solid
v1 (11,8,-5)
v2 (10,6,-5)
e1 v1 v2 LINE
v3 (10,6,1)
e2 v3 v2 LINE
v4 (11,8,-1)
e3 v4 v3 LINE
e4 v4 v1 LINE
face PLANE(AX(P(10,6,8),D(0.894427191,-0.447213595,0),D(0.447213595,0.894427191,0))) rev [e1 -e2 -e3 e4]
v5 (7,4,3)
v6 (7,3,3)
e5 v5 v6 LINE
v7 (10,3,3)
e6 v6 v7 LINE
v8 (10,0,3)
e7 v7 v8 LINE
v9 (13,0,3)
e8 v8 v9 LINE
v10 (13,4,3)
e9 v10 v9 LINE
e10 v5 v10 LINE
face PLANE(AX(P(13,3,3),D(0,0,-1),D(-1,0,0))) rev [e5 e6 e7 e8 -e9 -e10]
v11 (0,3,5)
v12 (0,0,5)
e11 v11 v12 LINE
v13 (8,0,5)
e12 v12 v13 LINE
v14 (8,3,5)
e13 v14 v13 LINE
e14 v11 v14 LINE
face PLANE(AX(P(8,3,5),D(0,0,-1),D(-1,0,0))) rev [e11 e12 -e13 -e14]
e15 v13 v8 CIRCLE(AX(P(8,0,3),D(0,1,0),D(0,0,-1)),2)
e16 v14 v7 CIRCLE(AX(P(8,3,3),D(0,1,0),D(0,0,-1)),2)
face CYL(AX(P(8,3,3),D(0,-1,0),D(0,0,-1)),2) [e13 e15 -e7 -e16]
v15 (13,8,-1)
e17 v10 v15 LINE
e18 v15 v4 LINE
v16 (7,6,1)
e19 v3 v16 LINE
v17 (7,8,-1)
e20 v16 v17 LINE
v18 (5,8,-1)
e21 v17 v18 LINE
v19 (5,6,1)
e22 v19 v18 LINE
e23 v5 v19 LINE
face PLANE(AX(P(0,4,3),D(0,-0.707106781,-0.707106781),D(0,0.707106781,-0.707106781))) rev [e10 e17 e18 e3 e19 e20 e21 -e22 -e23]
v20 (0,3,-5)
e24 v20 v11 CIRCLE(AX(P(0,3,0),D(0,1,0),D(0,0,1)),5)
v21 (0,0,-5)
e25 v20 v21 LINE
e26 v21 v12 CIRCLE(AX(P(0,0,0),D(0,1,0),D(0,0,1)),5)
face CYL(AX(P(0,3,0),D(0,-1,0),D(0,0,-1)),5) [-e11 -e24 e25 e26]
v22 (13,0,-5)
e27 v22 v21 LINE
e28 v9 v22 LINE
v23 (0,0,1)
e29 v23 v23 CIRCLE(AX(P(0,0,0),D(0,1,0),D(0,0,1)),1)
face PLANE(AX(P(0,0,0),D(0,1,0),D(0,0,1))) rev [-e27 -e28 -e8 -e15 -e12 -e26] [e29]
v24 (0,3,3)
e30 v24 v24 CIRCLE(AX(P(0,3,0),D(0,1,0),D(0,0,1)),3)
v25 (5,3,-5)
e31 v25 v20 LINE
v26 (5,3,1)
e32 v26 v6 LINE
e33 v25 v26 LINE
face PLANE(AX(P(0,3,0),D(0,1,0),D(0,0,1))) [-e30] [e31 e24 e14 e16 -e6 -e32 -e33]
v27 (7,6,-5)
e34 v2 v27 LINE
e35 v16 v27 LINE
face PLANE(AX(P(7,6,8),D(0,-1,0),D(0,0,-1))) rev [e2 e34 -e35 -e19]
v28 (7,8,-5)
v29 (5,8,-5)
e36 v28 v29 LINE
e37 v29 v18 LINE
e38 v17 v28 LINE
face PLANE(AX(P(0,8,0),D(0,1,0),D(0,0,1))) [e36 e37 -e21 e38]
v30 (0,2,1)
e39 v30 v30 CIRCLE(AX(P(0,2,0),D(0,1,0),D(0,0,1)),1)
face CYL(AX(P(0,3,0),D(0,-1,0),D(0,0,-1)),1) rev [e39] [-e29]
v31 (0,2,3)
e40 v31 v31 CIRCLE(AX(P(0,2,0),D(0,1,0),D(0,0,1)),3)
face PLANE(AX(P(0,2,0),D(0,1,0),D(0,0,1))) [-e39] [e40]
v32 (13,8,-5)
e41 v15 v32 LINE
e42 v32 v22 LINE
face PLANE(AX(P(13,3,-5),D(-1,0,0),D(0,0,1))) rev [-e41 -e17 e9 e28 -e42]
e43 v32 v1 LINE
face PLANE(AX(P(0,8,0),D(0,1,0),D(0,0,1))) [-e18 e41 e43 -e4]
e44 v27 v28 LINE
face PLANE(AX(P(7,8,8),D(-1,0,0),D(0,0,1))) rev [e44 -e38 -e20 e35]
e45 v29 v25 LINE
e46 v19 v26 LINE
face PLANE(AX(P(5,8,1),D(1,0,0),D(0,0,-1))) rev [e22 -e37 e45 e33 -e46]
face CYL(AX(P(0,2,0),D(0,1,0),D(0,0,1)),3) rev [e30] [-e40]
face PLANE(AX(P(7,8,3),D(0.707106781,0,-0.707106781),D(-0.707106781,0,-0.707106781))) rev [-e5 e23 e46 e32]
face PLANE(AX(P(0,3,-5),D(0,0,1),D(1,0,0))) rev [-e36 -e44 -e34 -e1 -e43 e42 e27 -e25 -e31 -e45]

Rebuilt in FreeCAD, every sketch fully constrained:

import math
import FreeCAD as App
import Part
import Sketcher
from FreeCAD import Vector

doc = App.newDocument("Part")
body = doc.addObject("PartDesign::Body", "Body")

# Sketch on XZ plane
sketch1 = body.newObject("Sketcher::SketchObject", "Sketch")
sketch1.AttachmentSupport = (doc.getObject("XZ_Plane"), [""])
sketch1.MapMode = "FlatFace"
sketch1.addGeometry(Part.LineSegment(Vector(13, -5, 0), Vector(0, -5, 0)), False)
sketch1.addGeometry(Part.ArcOfCircle(Part.Circle(Vector(0, 0, 0), Vector(0, 0, 1), 5), math.radians(90), math.radians(270)), False)
sketch1.addGeometry(Part.LineSegment(Vector(0, 5, 0), Vector(8, 5, 0)), False)
sketch1.addGeometry(Part.ArcOfCircle(Part.Circle(Vector(8, 3, 0), Vector(0, 0, 1), 2), math.radians(0), math.radians(90)), False)
sketch1.addGeometry(Part.LineSegment(Vector(10, 3, 0), Vector(13, 3, 0)), False)
sketch1.addGeometry(Part.LineSegment(Vector(13, 3, 0), Vector(13, -5, 0)), False)
sketch1.addGeometry(Part.Circle(Vector(0, 0, 0), Vector(0, 0, 1), 1), False)
sketch1.addConstraint(Sketcher.Constraint("Tangent", 0, 2, 1, 2))
sketch1.addConstraint(Sketcher.Constraint("Tangent", 1, 1, 2, 1))
sketch1.addConstraint(Sketcher.Constraint("Tangent", 2, 2, 3, 2))
sketch1.addConstraint(Sketcher.Constraint("Coincident", 3, 1, 4, 1))
sketch1.addConstraint(Sketcher.Constraint("Coincident", 4, 2, 5, 1))
sketch1.addConstraint(Sketcher.Constraint("Coincident", 5, 2, 0, 1))
sketch1.addConstraint(Sketcher.Constraint("Horizontal", 0))
sketch1.addConstraint(Sketcher.Constraint("Horizontal", 2))
sketch1.addConstraint(Sketcher.Constraint("Horizontal", 4))
sketch1.addConstraint(Sketcher.Constraint("Vertical", 5))
sketch1.addConstraint(Sketcher.Constraint("Coincident", 1, 3, -1, 1))
sketch1.addConstraint(Sketcher.Constraint("Coincident", 6, 3, -1, 1))
sketch1.addConstraint(Sketcher.Constraint("Equal", 2, 5))
sketch1.addConstraint(Sketcher.Constraint("Diameter", 6, 2.0))
sketch1.addConstraint(Sketcher.Constraint("Radius", 1, 5.0))
sketch1.addConstraint(Sketcher.Constraint("Radius", 3, 2.0))
sketch1.addConstraint(Sketcher.Constraint("DistanceX", 0, 2, 0, 1, 13.0))
sketch1.addConstraint(Sketcher.Constraint("DistanceX", 2, 1, 2, 2, 8.0))
pad1 = body.newObject("PartDesign::Pad", "Pad")
pad1.Profile = sketch1
pad1.Length = 3
pad1.Reversed = True

# Sketch on XZ plane
sketch2 = body.newObject("Sketcher::SketchObject", "Sketch001")
sketch2.AttachmentSupport = (doc.getObject("XZ_Plane"), [""])
sketch2.MapMode = "FlatFace"
sketch2.AttachmentOffset = App.Placement(Vector(0, 0, -3), App.Rotation())
sketch2.addGeometry(Part.Circle(Vector(0, 0, 0), Vector(0, 0, 1), 3), False)
sketch2.addConstraint(Sketcher.Constraint("Coincident", 0, 3, -1, 1))
sketch2.addConstraint(Sketcher.Constraint("Diameter", 0, 6.0))
pocket1 = body.newObject("PartDesign::Pocket", "Pocket")
pocket1.Profile = sketch2
pocket1.Length = 1
pocket1.Reversed = True

# Sketch on XZ plane
sketch3 = body.newObject("Sketcher::SketchObject", "Sketch002")
sketch3.AttachmentSupport = (doc.getObject("XZ_Plane"), [""])
sketch3.MapMode = "FlatFace"
sketch3.AttachmentOffset = App.Placement(Vector(0, 0, -3), App.Rotation())
sketch3.addGeometry(Part.LineSegment(Vector(7, 3, 0), Vector(13, 3, 0)), False)
sketch3.addGeometry(Part.LineSegment(Vector(13, 3, 0), Vector(13, -5, 0)), False)
sketch3.addGeometry(Part.LineSegment(Vector(13, -5, 0), Vector(5, -5, 0)), False)
sketch3.addGeometry(Part.LineSegment(Vector(5, -5, 0), Vector(5, 1, 0)), False)
sketch3.addGeometry(Part.LineSegment(Vector(5, 1, 0), Vector(7, 3, 0)), False)
sketch3.addConstraint(Sketcher.Constraint("Coincident", 0, 2, 1, 1))
sketch3.addConstraint(Sketcher.Constraint("Coincident", 1, 2, 2, 1))
sketch3.addConstraint(Sketcher.Constraint("Coincident", 2, 2, 3, 1))
sketch3.addConstraint(Sketcher.Constraint("Coincident", 3, 2, 4, 1))
sketch3.addConstraint(Sketcher.Constraint("Coincident", 4, 2, 0, 1))
sketch3.addConstraint(Sketcher.Constraint("Horizontal", 0))
sketch3.addConstraint(Sketcher.Constraint("Vertical", 1))
sketch3.addConstraint(Sketcher.Constraint("Horizontal", 2))
sketch3.addConstraint(Sketcher.Constraint("Vertical", 3))
sketch3.addConstraint(Sketcher.Constraint("Equal", 2, 1))
sketch3.addConstraint(Sketcher.Constraint("Equal", 0, 3))
sketch3.addConstraint(Sketcher.Constraint("DistanceX", 0, 1, 0, 2, 6.0))
sketch3.addConstraint(Sketcher.Constraint("DistanceX", 2, 2, 2, 1, 8.0))
sketch3.addConstraint(Sketcher.Constraint("DistanceX", -1, 1, 0, 2, 13.0))
sketch3.addConstraint(Sketcher.Constraint("DistanceY", -1, 1, 0, 2, 3.0))
pad2 = body.newObject("PartDesign::Pad", "Pad001")
pad2.Profile = sketch3
pad2.Length = 5
pad2.Reversed = True

# Sketch on YZ plane
sketch4 = body.newObject("Sketcher::SketchObject", "Sketch003")
sketch4.AttachmentSupport = (doc.getObject("YZ_Plane"), [""])
sketch4.MapMode = "FlatFace"
sketch4.AttachmentOffset = App.Placement(Vector(0, 0, 13), App.Rotation())
sketch4.addGeometry(Part.LineSegment(Vector(4, 3, 0), Vector(8, -1, 0)), False)
sketch4.addGeometry(Part.LineSegment(Vector(8, -1, 0), Vector(8, 3, 0)), False)
sketch4.addGeometry(Part.LineSegment(Vector(8, 3, 0), Vector(4, 3, 0)), False)
sketch4.addConstraint(Sketcher.Constraint("Coincident", 0, 2, 1, 1))
sketch4.addConstraint(Sketcher.Constraint("Coincident", 1, 2, 2, 1))
sketch4.addConstraint(Sketcher.Constraint("Coincident", 2, 2, 0, 1))
sketch4.addConstraint(Sketcher.Constraint("Vertical", 1))
sketch4.addConstraint(Sketcher.Constraint("Horizontal", 2))
sketch4.addConstraint(Sketcher.Constraint("Equal", 2, 1))
sketch4.addConstraint(Sketcher.Constraint("DistanceX", 2, 2, 2, 1, 4.0))
sketch4.addConstraint(Sketcher.Constraint("DistanceX", -1, 1, 0, 2, 8.0))
sketch4.addConstraint(Sketcher.Constraint("DistanceY", 0, 2, -1, 1, 1.0))
pocket2 = body.newObject("PartDesign::Pocket", "Pocket001")
pocket2.Profile = sketch4
pocket2.Length = 13

# Sketch on XY plane
sketch5 = body.newObject("Sketcher::SketchObject", "Sketch004")
sketch5.AttachmentSupport = (doc.getObject("XY_Plane"), [""])
sketch5.MapMode = "FlatFace"
sketch5.AttachmentOffset = App.Placement(Vector(0, 0, -5), App.Rotation())
sketch5.addGeometry(Part.LineSegment(Vector(7, 6, 0), Vector(7, 8, 0)), False)
sketch5.addGeometry(Part.LineSegment(Vector(7, 8, 0), Vector(11, 8, 0)), False)
sketch5.addGeometry(Part.LineSegment(Vector(11, 8, 0), Vector(10, 6, 0)), False)
sketch5.addGeometry(Part.LineSegment(Vector(10, 6, 0), Vector(7, 6, 0)), False)
sketch5.addConstraint(Sketcher.Constraint("Coincident", 0, 2, 1, 1))
sketch5.addConstraint(Sketcher.Constraint("Coincident", 1, 2, 2, 1))
sketch5.addConstraint(Sketcher.Constraint("Coincident", 2, 2, 3, 1))
sketch5.addConstraint(Sketcher.Constraint("Coincident", 3, 2, 0, 1))
sketch5.addConstraint(Sketcher.Constraint("Vertical", 0))
sketch5.addConstraint(Sketcher.Constraint("Horizontal", 1))
sketch5.addConstraint(Sketcher.Constraint("Horizontal", 3))
sketch5.addConstraint(Sketcher.Constraint("DistanceX", 1, 1, 1, 2, 4.0))
sketch5.addConstraint(Sketcher.Constraint("DistanceX", 3, 2, 3, 1, 3.0))
sketch5.addConstraint(Sketcher.Constraint("DistanceY", 0, 1, 0, 2, 2.0))
sketch5.addConstraint(Sketcher.Constraint("DistanceX", -1, 1, 0, 2, 7.0))
sketch5.addConstraint(Sketcher.Constraint("DistanceY", -1, 1, 0, 2, 8.0))
pocket3 = body.newObject("PartDesign::Pocket", "Pocket002")
pocket3.Profile = sketch5
pocket3.Length = 13
pocket3.Reversed = True

doc.recompute()
